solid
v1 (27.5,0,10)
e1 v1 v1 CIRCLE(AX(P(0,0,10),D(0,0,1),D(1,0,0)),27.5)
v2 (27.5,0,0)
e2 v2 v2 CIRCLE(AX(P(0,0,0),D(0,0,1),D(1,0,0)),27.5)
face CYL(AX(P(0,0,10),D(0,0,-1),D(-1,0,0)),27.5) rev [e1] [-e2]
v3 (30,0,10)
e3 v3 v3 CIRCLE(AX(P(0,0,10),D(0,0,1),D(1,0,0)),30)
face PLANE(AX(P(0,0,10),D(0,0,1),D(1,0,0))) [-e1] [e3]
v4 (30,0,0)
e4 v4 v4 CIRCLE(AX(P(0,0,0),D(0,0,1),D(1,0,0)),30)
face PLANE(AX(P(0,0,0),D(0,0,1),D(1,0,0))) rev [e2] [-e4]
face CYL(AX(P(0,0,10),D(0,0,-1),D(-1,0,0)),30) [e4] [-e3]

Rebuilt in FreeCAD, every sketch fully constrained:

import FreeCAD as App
import Part
import Sketcher
from FreeCAD import Vector

doc = App.newDocument("Part")
body = doc.addObject("PartDesign::Body", "Body")

# Sketch on XY plane
sketch1 = body.newObject("Sketcher::SketchObject", "Sketch")
sketch1.AttachmentSupport = (doc.getObject("XY_Plane"), [""])
sketch1.MapMode = "FlatFace"
sketch1.addGeometry(Part.Circle(Vector(0, 0, 0), Vector(0, 0, 1), 30), False)
sketch1.addGeometry(Part.Circle(Vector(0, 0, 0), Vector(0, 0, 1), 27.5), False)
sketch1.addConstraint(Sketcher.Constraint("Coincident", 0, 3, -1, 1))
sketch1.addConstraint(Sketcher.Constraint("Coincident", 1, 3, -1, 1))
sketch1.addConstraint(Sketcher.Constraint("Diameter", 0, 60.0))
sketch1.addConstraint(Sketcher.Constraint("Diameter", 1, 55.0))
pad1 = body.newObject("PartDesign::Pad", "Pad")
pad1.Profile = sketch1
pad1.Length = 10

doc.recompute()
